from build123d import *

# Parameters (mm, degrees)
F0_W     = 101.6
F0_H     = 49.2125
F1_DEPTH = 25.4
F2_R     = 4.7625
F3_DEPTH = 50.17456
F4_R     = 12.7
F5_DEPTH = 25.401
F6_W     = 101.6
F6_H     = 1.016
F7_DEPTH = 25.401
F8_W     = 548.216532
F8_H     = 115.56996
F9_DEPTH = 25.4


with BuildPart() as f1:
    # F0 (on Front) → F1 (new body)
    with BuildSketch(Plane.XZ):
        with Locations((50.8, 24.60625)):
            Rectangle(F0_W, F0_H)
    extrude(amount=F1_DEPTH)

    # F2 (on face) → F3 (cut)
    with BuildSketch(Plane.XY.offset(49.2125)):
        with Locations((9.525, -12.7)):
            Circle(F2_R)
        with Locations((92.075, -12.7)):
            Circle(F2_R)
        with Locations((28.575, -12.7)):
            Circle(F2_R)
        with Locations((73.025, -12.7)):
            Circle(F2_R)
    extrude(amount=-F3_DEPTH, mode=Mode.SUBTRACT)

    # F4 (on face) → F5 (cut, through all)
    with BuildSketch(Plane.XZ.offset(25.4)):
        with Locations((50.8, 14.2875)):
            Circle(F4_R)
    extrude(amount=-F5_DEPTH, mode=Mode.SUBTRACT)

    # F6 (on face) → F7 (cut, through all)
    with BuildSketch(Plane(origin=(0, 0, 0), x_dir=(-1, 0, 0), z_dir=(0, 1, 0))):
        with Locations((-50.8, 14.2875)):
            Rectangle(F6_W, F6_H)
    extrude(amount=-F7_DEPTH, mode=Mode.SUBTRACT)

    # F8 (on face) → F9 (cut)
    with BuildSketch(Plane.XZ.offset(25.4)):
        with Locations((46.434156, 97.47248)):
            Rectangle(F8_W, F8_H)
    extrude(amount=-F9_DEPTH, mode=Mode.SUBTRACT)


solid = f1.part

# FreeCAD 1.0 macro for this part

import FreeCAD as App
import Part
import Sketcher
Q = App.Units.Quantity


def add_polygon(sketch, points):
    """Adds a closed chain of lines whose ends are joined by coincident constraints."""
    first, n = sketch.GeometryCount, len(points)
    for a, b in zip(points, points[1:] + points[:1]):
        sketch.addGeometry(Part.LineSegment(App.Vector(*a, 0), App.Vector(*b, 0)), False)
    for i in range(n):
        sketch.addConstraint(Sketcher.Constraint("Coincident", first + i, 2, first + (i + 1) % n, 1))

doc = App.newDocument("Part")
params = doc.addObject("Spreadsheet::Sheet", "Params")
for row, (alias, value) in enumerate([
    ("sketch1_width", "4 in"),
    ("sketch1_height", "1.9375 in"),
    ("pad1_length", "1 in"),
    ("sketch2_diameter", "0.375 in"),
    ("pocket1_length", "50.17456 mm"),
    ("sketch3_diameter", "1 in"),
    ("sketch4_width", "4 in"),
    ("sketch4_height", "0.04 in"),
    ("pocket4_length", "1 in"),
], start=1):
    params.set(f"A{row}", alias)
    params.set(f"B{row}", "=" + value)
    params.setAlias(f"B{row}", alias)

body = doc.addObject("PartDesign::Body", "Body")
body.AllowCompound = True

sketch1 = body.newObject("Sketcher::SketchObject", "Sketch")
sketch1.AttachmentSupport = (doc.getObject("XZ_Plane"), [""])
sketch1.MapMode = "FlatFace"
add_polygon(sketch1, [(0, 49), (0, 0), (102, 0), (102, 49)])
sketch1.addConstraint([
    Sketcher.Constraint("Vertical", 0),
    Sketcher.Constraint("Horizontal", 1),
    Sketcher.Constraint("Vertical", 2),
    Sketcher.Constraint("Horizontal", 3),
    Sketcher.Constraint("Coincident", 0, 2, -1, 1),
    Sketcher.Constraint("DistanceX", 1, 1, 1, 2, Q("4 in")),
    Sketcher.Constraint("DistanceY", 0, 2, 0, 1, Q("1.9375 in")),
])
sketch1.setExpression("Constraints[9]", "Params.sketch1_width")
sketch1.setExpression("Constraints[10]", "Params.sketch1_height")
pad1 = body.newObject("PartDesign::Pad", "Pad")
pad1.Profile = sketch1
pad1.setExpression("Length", "Params.pad1_length")

sketch2 = body.newObject("Sketcher::SketchObject", "Sketch001")
sketch2.AttachmentSupport = (doc.getObject("XY_Plane"), [""])
sketch2.MapMode = "FlatFace"
sketch2.AttachmentOffset = App.Placement(App.Vector(0, 0, 1.9375 * 25.4), App.Rotation())
sketch2.addGeometry([
    Part.Circle(App.Vector(9.5, -12.7, 0), App.Vector(0, 0, 1), 4.8),
    Part.Circle(App.Vector(92.1, -12.7, 0), App.Vector(0, 0, 1), 4.8),
    Part.Circle(App.Vector(28.6, -12.7, 0), App.Vector(0, 0, 1), 4.8),
    Part.Circle(App.Vector(73, -12.7, 0), App.Vector(0, 0, 1), 4.8),
], False)
sketch2.addConstraint([
    Sketcher.Constraint("Equal", 0, 1),
    Sketcher.Constraint("Equal", 1, 2),
    Sketcher.Constraint("Equal", 2, 3),
    Sketcher.Constraint("Horizontal", 0, 3, 1, 3),
    Sketcher.Constraint("Horizontal", 1, 3, 2, 3),
    Sketcher.Constraint("Horizontal", 2, 3, 3, 3),
    Sketcher.Constraint("Diameter", 0, Q("0.375 in")),
    Sketcher.Constraint("DistanceY", 0, 3, -1, 1, Q("0.5 in")),
    Sketcher.Constraint("DistanceX", 2, 3, 1, 3, Q("2.5 in")),
    Sketcher.Constraint("DistanceX", 0, 3, 3, 3, Q("2.5 in")),
    Sketcher.Constraint("DistanceX", 0, 3, 1, 3, Q("3.25 in")),
    Sketcher.Constraint("DistanceX", -1, 1, 0, 3, Q("0.375 in")),
])
sketch2.setExpression("Constraints[6]", "Params.sketch2_diameter")
pocket1 = body.newObject("PartDesign::Pocket", "Pocket")
pocket1.Profile = sketch2
pocket1.setExpression("Length", "Params.pocket1_length")

sketch3 = body.newObject("Sketcher::SketchObject", "Sketch002")
sketch3.AttachmentSupport = (doc.getObject("XZ_Plane"), [""])
sketch3.MapMode = "FlatFace"
sketch3.AttachmentOffset = App.Placement(App.Vector(0, 0, 1 * 25.4), App.Rotation())
sketch3.addGeometry(Part.Circle(App.Vector(51, 14, 0), App.Vector(0, 0, 1), 13), False)
sketch3.addConstraint([
    Sketcher.Constraint("Diameter", 0, Q("1 in")),
    Sketcher.Constraint("DistanceX", -1, 1, 0, 3, Q("2 in")),
    Sketcher.Constraint("DistanceY", -1, 1, 0, 3, Q("0.5625 in")),
])
sketch3.setExpression("Constraints[0]", "Params.sketch3_diameter")
pocket2 = body.newObject("PartDesign::Pocket", "Pocket001")
pocket2.Profile = sketch3
pocket2.Type = "ThroughAll"

sketch4 = body.newObject("Sketcher::SketchObject", "Sketch003")
sketch4.AttachmentSupport = (doc.getObject("XZ_Plane"), [""])
sketch4.MapMode = "FlatFace"
add_polygon(sketch4, [(101.6, 14.8), (101.6, 13.8), (0, 13.8), (0, 14.8)])
sketch4.addConstraint([
    Sketcher.Constraint("Vertical", 0),
    Sketcher.Constraint("Horizontal", 1),
    Sketcher.Constraint("Vertical", 2),
    Sketcher.Constraint("Horizontal", 3),
    Sketcher.Constraint("PointOnObject", 1, 2, -2),
    Sketcher.Constraint("DistanceX", 1, 2, 1, 1, Q("4 in")),
    Sketcher.Constraint("DistanceY", 0, 2, 0, 1, Q("0.04 in")),
    Sketcher.Constraint("DistanceY", -1, 1, 0, 2, Q("0.5425 in")),
])
sketch4.setExpression("Constraints[9]", "Params.sketch4_width")
sketch4.setExpression("Constraints[10]", "Params.sketch4_height")
pocket3 = body.newObject("PartDesign::Pocket", "Pocket002")
pocket3.Profile = sketch4
pocket3.Type = "ThroughAll"
pocket3.Reversed = True

sketch5 = body.newObject("Sketcher::SketchObject", "Sketch004")
sketch5.AttachmentSupport = (doc.getObject("XZ_Plane"), [""])
sketch5.MapMode = "FlatFace"
sketch5.AttachmentOffset = App.Placement(App.Vector(0, 0, 1 * 25.4), App.Rotation())
add_polygon(sketch5, [(-228, 155), (-228, 40), (321, 40), (321, 155)])
sketch5.addConstraint([
    Sketcher.Constraint("Vertical", 0),
    Sketcher.Constraint("Horizontal", 1),
    Sketcher.Constraint("Vertical", 2),
    Sketcher.Constraint("Horizontal", 3),
    Sketcher.Constraint("DistanceY", -1, 1, 0, 2, Q("1.5625 in")),
    Sketcher.Constraint("DistanceX", 1, 1, 1, 2, Q("548.216532 mm")),
    Sketcher.Constraint("DistanceY", 0, 2, 0, 1, Q("115.56996 mm")),
    Sketcher.Constraint("DistanceX", 0, 2, -1, 1, Q("227.67411 mm")),
])
pocket4 = body.newObject("PartDesign::Pocket", "Pocket003")
pocket4.Profile = sketch5
pocket4.setExpression("Length", "Params.pocket4_length")

doc.recompute()
